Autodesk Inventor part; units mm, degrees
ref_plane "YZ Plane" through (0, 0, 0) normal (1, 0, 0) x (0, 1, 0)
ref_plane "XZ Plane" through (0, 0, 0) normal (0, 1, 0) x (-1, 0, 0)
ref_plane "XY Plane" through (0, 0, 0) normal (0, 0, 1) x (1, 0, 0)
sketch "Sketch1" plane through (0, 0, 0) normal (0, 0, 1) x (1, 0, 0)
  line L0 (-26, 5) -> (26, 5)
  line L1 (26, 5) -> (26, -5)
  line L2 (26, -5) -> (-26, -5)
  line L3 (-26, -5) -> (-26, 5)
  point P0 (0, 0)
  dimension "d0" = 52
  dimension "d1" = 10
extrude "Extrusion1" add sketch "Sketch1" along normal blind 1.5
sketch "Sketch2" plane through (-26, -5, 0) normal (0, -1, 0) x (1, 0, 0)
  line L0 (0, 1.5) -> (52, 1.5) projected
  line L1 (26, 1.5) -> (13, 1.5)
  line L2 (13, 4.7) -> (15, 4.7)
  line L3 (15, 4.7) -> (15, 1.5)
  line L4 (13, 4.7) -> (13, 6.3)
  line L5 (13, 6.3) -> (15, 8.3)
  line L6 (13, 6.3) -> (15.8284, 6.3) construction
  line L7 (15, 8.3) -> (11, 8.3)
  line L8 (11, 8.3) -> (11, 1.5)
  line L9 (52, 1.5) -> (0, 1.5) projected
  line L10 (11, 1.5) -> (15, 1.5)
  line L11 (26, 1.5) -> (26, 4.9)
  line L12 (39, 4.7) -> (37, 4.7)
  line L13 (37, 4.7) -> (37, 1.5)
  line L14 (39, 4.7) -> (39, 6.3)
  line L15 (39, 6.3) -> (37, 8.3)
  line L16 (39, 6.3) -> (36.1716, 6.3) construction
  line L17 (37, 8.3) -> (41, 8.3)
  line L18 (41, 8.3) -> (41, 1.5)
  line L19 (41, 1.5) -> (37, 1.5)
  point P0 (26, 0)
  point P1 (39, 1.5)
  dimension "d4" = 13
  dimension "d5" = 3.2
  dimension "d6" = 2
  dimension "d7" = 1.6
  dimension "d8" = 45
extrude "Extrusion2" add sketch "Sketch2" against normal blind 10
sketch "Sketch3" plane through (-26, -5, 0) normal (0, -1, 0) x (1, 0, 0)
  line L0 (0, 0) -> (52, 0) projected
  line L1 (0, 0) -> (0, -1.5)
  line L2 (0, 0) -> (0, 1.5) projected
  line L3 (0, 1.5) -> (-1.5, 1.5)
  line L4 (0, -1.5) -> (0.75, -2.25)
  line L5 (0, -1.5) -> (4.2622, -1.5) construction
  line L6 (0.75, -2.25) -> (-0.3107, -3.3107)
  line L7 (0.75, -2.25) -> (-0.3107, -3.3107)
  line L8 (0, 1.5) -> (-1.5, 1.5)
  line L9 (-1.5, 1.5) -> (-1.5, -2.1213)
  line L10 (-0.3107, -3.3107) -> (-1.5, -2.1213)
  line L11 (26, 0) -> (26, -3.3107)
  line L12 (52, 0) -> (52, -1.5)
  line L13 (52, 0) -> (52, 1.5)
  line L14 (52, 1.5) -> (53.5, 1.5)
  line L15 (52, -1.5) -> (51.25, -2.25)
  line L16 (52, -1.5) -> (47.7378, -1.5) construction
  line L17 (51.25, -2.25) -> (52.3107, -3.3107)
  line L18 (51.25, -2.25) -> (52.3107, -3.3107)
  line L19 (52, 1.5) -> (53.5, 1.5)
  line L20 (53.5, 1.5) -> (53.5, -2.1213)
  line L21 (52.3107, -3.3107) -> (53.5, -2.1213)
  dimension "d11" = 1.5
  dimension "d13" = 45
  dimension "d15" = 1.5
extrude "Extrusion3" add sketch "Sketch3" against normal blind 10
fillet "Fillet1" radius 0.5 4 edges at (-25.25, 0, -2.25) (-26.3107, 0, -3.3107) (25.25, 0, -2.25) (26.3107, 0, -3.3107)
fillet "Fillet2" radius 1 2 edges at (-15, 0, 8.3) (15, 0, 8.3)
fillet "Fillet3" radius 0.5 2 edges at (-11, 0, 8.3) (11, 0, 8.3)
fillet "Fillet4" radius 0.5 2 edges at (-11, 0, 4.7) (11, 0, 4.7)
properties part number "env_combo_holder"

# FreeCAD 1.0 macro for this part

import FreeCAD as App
import Part
import Sketcher
from FreeCAD import Vector
Q = App.Units.Quantity


def edges_at(feature, points):
    """Names of the edges that pass closest to the given points."""
    edges = feature.Shape.Edges
    near = lambda p: min(range(len(edges)), key=lambda i: edges[i].distToShape(Part.Vertex(*p))[0])
    return sorted({f"Edge{near(p) + 1}" for p in points})

doc = App.newDocument("Part")
body = doc.addObject("PartDesign::Body", "Body")

# Sketch on XY plane
sketch1 = body.newObject("Sketcher::SketchObject", "Sketch")
sketch1.AttachmentSupport = (doc.getObject("XY_Plane"), [""])
sketch1.MapMode = "FlatFace"
sketch1.addGeometry([
    Part.LineSegment(Vector(26, 5, 0), Vector(-26, 5, 0)),
    Part.LineSegment(Vector(-26, 5, 0), Vector(-26, -5, 0)),
    Part.LineSegment(Vector(-26, -5, 0), Vector(26, -5, 0)),
    Part.LineSegment(Vector(26, -5, 0), Vector(26, 5, 0)),
], False)
sketch1.addConstraint([
    Sketcher.Constraint("Coincident", 0, 2, 1, 1),
    Sketcher.Constraint("Coincident", 1, 2, 2, 1),
    Sketcher.Constraint("Coincident", 2, 2, 3, 1),
    Sketcher.Constraint("Coincident", 3, 2, 0, 1),
    Sketcher.Constraint("Horizontal", 0),
    Sketcher.Constraint("Vertical", 1),
    Sketcher.Constraint("Horizontal", 2),
    Sketcher.Constraint("Vertical", 3),
    Sketcher.Constraint("Symmetric", 0, 2, 2, 2, -1, 1),
    Sketcher.Constraint("DistanceX", 0, 2, 0, 1, Q("52 mm")),
    Sketcher.Constraint("DistanceY", 1, 2, 1, 1, Q("10 mm")),
])
pad1 = body.newObject("PartDesign::Pad", "Pad")
pad1.Profile = sketch1
pad1.Length = 1.5

# Sketch on XZ plane
sketch2 = body.newObject("Sketcher::SketchObject", "Sketch001")
sketch2.AttachmentSupport = (doc.getObject("XZ_Plane"), [""])
sketch2.MapMode = "FlatFace"
sketch2.AttachmentOffset = App.Placement(Vector(0, 0, 5), App.Rotation())
sketch2.addGeometry([
    Part.LineSegment(Vector(-15, 8.3, 0), Vector(-15, 1.5, 0)),  # 0
    Part.LineSegment(Vector(-15, 1.5, 0), Vector(-11, 1.5, 0)),  # 1
    Part.LineSegment(Vector(-11, 1.5, 0), Vector(-11, 4.7, 0)),  # 2
    Part.LineSegment(Vector(-11, 4.7, 0), Vector(-13, 4.7, 0)),  # 3
    Part.LineSegment(Vector(-13, 4.7, 0), Vector(-13, 6.3, 0)),  # 4
    Part.LineSegment(Vector(-13, 6.3, 0), Vector(-11, 8.3, 0)),  # 5
    Part.LineSegment(Vector(-11, 8.3, 0), Vector(-15, 8.3, 0)),  # 6
    Part.LineSegment(Vector(11, 4.7, 0), Vector(11, 1.5, 0)),  # 7
    Part.LineSegment(Vector(11, 1.5, 0), Vector(15, 1.5, 0)),  # 8
    Part.LineSegment(Vector(15, 1.5, 0), Vector(15, 8.3, 0)),  # 9
    Part.LineSegment(Vector(15, 8.3, 0), Vector(11, 8.3, 0)),  # 10
    Part.LineSegment(Vector(11, 8.3, 0), Vector(13, 6.3, 0)),  # 11
    Part.LineSegment(Vector(13, 6.3, 0), Vector(13, 4.7, 0)),  # 12
    Part.LineSegment(Vector(13, 4.7, 0), Vector(11, 4.7, 0)),  # 13
], False)
sketch2.addConstraint([
    Sketcher.Constraint("Coincident", 0, 2, 1, 1),
    Sketcher.Constraint("Coincident", 1, 2, 2, 1),
    Sketcher.Constraint("Coincident", 2, 2, 3, 1),
    Sketcher.Constraint("Coincident", 3, 2, 4, 1),
    Sketcher.Constraint("Coincident", 4, 2, 5, 1),
    Sketcher.Constraint("Coincident", 5, 2, 6, 1),
    Sketcher.Constraint("Coincident", 6, 2, 0, 1),
    Sketcher.Constraint("Coincident", 7, 2, 8, 1),
    Sketcher.Constraint("Coincident", 8, 2, 9, 1),
    Sketcher.Constraint("Coincident", 9, 2, 10, 1),
    Sketcher.Constraint("Coincident", 10, 2, 11, 1),
    Sketcher.Constraint("Coincident", 11, 2, 12, 1),
    Sketcher.Constraint("Coincident", 12, 2, 13, 1),
    Sketcher.Constraint("Coincident", 13, 2, 7, 1),
    Sketcher.Constraint("Vertical", 0),
    Sketcher.Constraint("Horizontal", 1),
    Sketcher.Constraint("Vertical", 2),
    Sketcher.Constraint("Horizontal", 3),
    Sketcher.Constraint("Vertical", 4),
    Sketcher.Constraint("Horizontal", 6),
    Sketcher.Constraint("Vertical", 7),
    Sketcher.Constraint("Horizontal", 8),
    Sketcher.Constraint("Vertical", 9),
    Sketcher.Constraint("Horizontal", 10),
    Sketcher.Constraint("Vertical", 12),
    Sketcher.Constraint("Horizontal", 13),
    Sketcher.Constraint("Symmetric", 1, 2, 7, 2, -2),
    Sketcher.Constraint("Symmetric", 6, 2, 9, 2, -2),
    Sketcher.Constraint("Symmetric", 4, 2, 11, 2, -2),
    Sketcher.Constraint("Perpendicular", 5, 11),
    Sketcher.Constraint("Horizontal", 3, 2, 12, 2),
    Sketcher.Constraint("Vertical", 2, 2, 5, 2),
    Sketcher.Constraint("Vertical", 7, 2, 10, 2),
    Sketcher.Constraint("DistanceX", 3, 2, 3, 1, Q("2 mm")),
    Sketcher.Constraint("DistanceY", 2, 1, 2, 2, Q("3.2 mm")),
    Sketcher.Constraint("DistanceY", 4, 1, 4, 2, Q("1.6 mm")),
    Sketcher.Constraint("DistanceX", 3, 2, -1, 1, Q("13 mm")),
    Sketcher.Constraint("DistanceX", 0, 2, 3, 2, Q("2 mm")),
    Sketcher.Constraint("DistanceY", -1, 1, 0, 2, Q("1.5 mm")),
])
pad2 = body.newObject("PartDesign::Pad", "Pad001")
pad2.Profile = sketch2
pad2.Length = 10
pad2.Reversed = True

# Sketch on XZ plane
sketch3 = body.newObject("Sketcher::SketchObject", "Sketch002")
sketch3.AttachmentSupport = (doc.getObject("XZ_Plane"), [""])
sketch3.MapMode = "FlatFace"
sketch3.AttachmentOffset = App.Placement(Vector(0, 0, 5), App.Rotation())
sketch3.addGeometry([
    Part.LineSegment(Vector(26, 1.5, 0), Vector(26, -1.5, 0)),  # 0
    Part.LineSegment(Vector(26, -1.5, 0), Vector(25.2, -2.2, 0)),  # 1
    Part.LineSegment(Vector(25.2, -2.2, 0), Vector(26.3, -3.3, 0)),  # 2
    Part.LineSegment(Vector(26.3, -3.3, 0), Vector(27.5, -2.1, 0)),  # 3
    Part.LineSegment(Vector(27.5, -2.1, 0), Vector(27.5, 1.5, 0)),  # 4
    Part.LineSegment(Vector(27.5, 1.5, 0), Vector(26, 1.5, 0)),  # 5
    Part.LineSegment(Vector(-26, -1.5, 0), Vector(-26, 1.5, 0)),  # 6
    Part.LineSegment(Vector(-26, 1.5, 0), Vector(-27.5, 1.5, 0)),  # 7
    Part.LineSegment(Vector(-27.5, 1.5, 0), Vector(-27.5, -2.1, 0)),  # 8
    Part.LineSegment(Vector(-27.5, -2.1, 0), Vector(-26.3, -3.3, 0)),  # 9
    Part.LineSegment(Vector(-26.3, -3.3, 0), Vector(-25.2, -2.2, 0)),  # 10
    Part.LineSegment(Vector(-25.2, -2.2, 0), Vector(-26, -1.5, 0)),  # 11
], False)
sketch3.addConstraint([
    Sketcher.Constraint("Coincident", 0, 2, 1, 1),
    Sketcher.Constraint("Coincident", 1, 2, 2, 1),
    Sketcher.Constraint("Coincident", 2, 2, 3, 1),
    Sketcher.Constraint("Coincident", 3, 2, 4, 1),
    Sketcher.Constraint("Coincident", 4, 2, 5, 1),
    Sketcher.Constraint("Coincident", 5, 2, 0, 1),
    Sketcher.Constraint("Coincident", 6, 2, 7, 1),
    Sketcher.Constraint("Coincident", 7, 2, 8, 1),
    Sketcher.Constraint("Coincident", 8, 2, 9, 1),
    Sketcher.Constraint("Coincident", 9, 2, 10, 1),
    Sketcher.Constraint("Coincident", 10, 2, 11, 1),
    Sketcher.Constraint("Coincident", 11, 2, 6, 1),
    Sketcher.Constraint("Vertical", 0),
    Sketcher.Constraint("Vertical", 4),
    Sketcher.Constraint("Horizontal", 5),
    Sketcher.Constraint("Vertical", 6),
    Sketcher.Constraint("Horizontal", 7),
    Sketcher.Constraint("Vertical", 8),
    Sketcher.Constraint("Symmetric", 0, 2, 6, 2, -1, 1),
    Sketcher.Constraint("Symmetric", 4, 2, 7, 2, -2),
    Sketcher.Constraint("Symmetric", 2, 2, 9, 2, -2),
    Sketcher.Constraint("Symmetric", 1, 2, 10, 2, -2),
    Sketcher.Constraint("Perpendicular", 1, 2),
    Sketcher.Constraint("Perpendicular", 2, 3),
    Sketcher.Constraint("Perpendicular", 3, 9),
    Sketcher.Constraint("Perpendicular", 9, 10),
    Sketcher.Constraint("Perpendicular", 10, 11),
    Sketcher.Constraint("DistanceX", 5, 2, 5, 1, Q("1.5 mm")),
    Sketcher.Constraint("Distance", 2, Q("1.5 mm")),
    Sketcher.Constraint("DistanceY", 0, 2, -1, 1, Q("1.5 mm")),
    Sketcher.Constraint("DistanceX", -1, 1, 0, 2, Q("26 mm")),
    Sketcher.Constraint("DistanceX", 10, 2, 1, 2, Q("50.5 mm")),
])
pad3 = body.newObject("PartDesign::Pad", "Pad002")
pad3.Profile = sketch3
pad3.Length = 10
pad3.Reversed = True
doc.recompute()

fillet = body.newObject("PartDesign::Fillet", "Fillet")
fillet.Base = (pad3, edges_at(pad3, [
    (-25.25, 0, -2.25),
    (-26.311, 0, -3.311),
    (25.25, 0, -2.25),
    (26.311, 0, -3.311),
]))
fillet.Radius = 0.5
doc.recompute()

fillet2 = body.newObject("PartDesign::Fillet", "Fillet001")
fillet2.Base = (fillet, edges_at(fillet, [(-15, 0, 8.3), (15, 0, 8.3)]))
fillet2.Radius = 1
doc.recompute()

fillet3 = body.newObject("PartDesign::Fillet", "Fillet002")
fillet3.Base = (fillet2, edges_at(fillet2, [(-11, 0, 8.3), (11, 0, 8.3)]))
fillet3.Radius = 0.5
doc.recompute()

fillet4 = body.newObject("PartDesign::Fillet", "Fillet003")
fillet4.Base = (fillet3, edges_at(fillet3, [(-11, 0, 4.7), (11, 0, 4.7)]))
fillet4.Radius = 0.5

doc.recompute()
